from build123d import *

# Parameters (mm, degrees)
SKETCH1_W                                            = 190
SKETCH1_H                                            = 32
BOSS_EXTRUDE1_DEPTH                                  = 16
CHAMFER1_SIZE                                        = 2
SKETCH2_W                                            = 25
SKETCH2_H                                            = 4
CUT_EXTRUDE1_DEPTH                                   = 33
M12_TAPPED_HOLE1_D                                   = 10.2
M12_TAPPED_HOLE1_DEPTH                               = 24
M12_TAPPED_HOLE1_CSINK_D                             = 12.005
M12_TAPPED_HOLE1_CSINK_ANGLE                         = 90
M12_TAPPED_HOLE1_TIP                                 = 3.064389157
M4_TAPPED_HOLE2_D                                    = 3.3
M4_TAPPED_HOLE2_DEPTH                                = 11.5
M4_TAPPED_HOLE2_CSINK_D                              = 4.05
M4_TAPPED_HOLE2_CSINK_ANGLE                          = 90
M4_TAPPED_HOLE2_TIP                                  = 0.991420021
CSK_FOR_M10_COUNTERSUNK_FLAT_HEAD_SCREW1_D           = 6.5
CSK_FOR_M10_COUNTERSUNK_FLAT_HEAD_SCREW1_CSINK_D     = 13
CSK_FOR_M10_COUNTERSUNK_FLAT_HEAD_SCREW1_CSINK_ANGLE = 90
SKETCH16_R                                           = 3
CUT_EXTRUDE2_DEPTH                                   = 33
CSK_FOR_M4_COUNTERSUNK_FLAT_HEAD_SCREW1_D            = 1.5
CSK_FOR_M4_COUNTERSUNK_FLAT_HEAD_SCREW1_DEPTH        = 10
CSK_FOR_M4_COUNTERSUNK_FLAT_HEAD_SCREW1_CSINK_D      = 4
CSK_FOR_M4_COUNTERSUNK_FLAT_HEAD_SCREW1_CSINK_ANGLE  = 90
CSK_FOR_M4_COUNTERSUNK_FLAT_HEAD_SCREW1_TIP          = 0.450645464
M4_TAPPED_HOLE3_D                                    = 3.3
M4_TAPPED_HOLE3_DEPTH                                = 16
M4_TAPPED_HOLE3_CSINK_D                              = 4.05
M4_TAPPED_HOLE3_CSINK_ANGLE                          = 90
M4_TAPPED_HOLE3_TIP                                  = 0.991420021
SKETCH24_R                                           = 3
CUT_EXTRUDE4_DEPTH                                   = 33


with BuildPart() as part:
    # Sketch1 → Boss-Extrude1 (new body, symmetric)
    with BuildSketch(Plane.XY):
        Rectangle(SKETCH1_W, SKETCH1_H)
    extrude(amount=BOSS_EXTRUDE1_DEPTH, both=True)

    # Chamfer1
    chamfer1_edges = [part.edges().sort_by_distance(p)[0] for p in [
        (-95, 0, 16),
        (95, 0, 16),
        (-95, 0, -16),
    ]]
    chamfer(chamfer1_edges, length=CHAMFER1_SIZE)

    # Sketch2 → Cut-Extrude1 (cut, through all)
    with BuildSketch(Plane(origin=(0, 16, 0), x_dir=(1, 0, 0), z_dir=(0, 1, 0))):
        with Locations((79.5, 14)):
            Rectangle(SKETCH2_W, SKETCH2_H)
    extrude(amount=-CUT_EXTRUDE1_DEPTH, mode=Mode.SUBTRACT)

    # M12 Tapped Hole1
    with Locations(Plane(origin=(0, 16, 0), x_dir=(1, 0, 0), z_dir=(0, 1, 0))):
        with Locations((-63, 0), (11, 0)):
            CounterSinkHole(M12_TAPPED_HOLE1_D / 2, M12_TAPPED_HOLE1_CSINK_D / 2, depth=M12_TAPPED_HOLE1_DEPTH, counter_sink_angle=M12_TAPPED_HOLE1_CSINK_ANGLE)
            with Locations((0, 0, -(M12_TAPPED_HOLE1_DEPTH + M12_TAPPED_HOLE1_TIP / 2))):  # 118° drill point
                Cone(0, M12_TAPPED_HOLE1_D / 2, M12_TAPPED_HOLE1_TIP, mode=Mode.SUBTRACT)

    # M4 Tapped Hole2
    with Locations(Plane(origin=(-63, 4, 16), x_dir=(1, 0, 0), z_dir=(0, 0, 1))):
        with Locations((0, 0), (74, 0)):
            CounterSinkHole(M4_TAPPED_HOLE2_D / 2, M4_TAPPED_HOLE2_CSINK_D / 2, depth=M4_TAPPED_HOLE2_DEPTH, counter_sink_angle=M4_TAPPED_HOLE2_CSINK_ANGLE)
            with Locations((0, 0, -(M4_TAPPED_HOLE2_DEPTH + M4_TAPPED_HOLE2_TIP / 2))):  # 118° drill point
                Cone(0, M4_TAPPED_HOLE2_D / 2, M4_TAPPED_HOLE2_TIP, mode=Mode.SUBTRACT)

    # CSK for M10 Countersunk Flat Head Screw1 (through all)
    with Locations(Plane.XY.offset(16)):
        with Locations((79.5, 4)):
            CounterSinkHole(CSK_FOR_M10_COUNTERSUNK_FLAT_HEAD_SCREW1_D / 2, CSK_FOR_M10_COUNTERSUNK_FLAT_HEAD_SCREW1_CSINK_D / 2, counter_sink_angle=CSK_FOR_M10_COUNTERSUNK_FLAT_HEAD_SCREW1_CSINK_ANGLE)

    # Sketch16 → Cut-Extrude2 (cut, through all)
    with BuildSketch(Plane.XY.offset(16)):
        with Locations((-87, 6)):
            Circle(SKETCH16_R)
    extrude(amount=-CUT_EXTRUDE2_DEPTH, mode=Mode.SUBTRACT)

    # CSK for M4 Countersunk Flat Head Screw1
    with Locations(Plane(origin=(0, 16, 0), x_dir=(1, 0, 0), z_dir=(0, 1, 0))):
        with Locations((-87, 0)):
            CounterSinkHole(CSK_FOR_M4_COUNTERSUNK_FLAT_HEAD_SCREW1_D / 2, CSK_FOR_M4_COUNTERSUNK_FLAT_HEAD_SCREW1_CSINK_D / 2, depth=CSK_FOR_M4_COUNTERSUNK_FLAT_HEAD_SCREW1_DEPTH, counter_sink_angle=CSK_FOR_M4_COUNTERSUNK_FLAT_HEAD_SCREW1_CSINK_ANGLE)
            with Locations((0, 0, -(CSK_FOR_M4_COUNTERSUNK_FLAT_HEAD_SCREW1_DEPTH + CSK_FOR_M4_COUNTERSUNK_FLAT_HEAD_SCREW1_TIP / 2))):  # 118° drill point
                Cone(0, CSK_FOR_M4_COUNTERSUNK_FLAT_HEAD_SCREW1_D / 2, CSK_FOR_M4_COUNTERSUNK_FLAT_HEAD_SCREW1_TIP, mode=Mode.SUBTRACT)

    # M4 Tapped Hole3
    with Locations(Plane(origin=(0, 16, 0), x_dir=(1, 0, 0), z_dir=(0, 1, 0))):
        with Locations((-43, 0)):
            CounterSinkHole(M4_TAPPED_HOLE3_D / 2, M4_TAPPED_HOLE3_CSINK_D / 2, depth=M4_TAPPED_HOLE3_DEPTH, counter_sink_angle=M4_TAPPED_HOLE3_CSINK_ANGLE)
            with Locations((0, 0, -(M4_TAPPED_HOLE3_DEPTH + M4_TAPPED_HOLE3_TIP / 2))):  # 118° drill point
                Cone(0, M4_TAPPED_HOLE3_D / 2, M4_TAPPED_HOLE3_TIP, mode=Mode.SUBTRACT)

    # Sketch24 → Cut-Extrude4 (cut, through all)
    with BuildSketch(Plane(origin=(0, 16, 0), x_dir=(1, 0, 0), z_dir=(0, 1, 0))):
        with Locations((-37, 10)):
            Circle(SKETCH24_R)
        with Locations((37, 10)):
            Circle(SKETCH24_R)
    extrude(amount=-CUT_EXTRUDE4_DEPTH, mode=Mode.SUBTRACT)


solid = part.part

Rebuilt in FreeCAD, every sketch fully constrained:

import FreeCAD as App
import Part
import Sketcher
Q = App.Units.Quantity


def edges_at(feature, points):
    """Names of the edges that pass closest to the given points."""
    edges = feature.Shape.Edges
    near = lambda p: min(range(len(edges)), key=lambda i: edges[i].distToShape(Part.Vertex(*p))[0])
    return sorted({f"Edge{near(p) + 1}" for p in points})


def add_polygon(sketch, points):
    """Adds a closed chain of lines whose ends are joined by coincident constraints."""
    first, n = sketch.GeometryCount, len(points)
    for a, b in zip(points, points[1:] + points[:1]):
        sketch.addGeometry(Part.LineSegment(App.Vector(*a, 0), App.Vector(*b, 0)), False)
    for i in range(n):
        sketch.addConstraint(Sketcher.Constraint("Coincident", first + i, 2, first + (i + 1) % n, 1))

doc = App.newDocument("Part")
body = doc.addObject("PartDesign::Body", "Body")

sketch1 = body.newObject("Sketcher::SketchObject", "Sketch")
sketch1.AttachmentSupport = (doc.getObject("XY_Plane"), [""])
sketch1.MapMode = "FlatFace"
add_polygon(sketch1, [(-95, 16), (-95, -16), (95, -16), (95, 16)])
sketch1.addConstraint([
    Sketcher.Constraint("Vertical", 0),
    Sketcher.Constraint("Horizontal", 1),
    Sketcher.Constraint("Vertical", 2),
    Sketcher.Constraint("Horizontal", 3),
    Sketcher.Constraint("Symmetric", 0, 2, 2, 2, -1, 1),
    Sketcher.Constraint("DistanceX", 1, 1, 1, 2, Q("190 mm")),
    Sketcher.Constraint("DistanceY", 0, 2, 0, 1, Q("32 mm")),
])
pad1 = body.newObject("PartDesign::Pad", "Pad")
pad1.Profile = sketch1
pad1.Length = 32
pad1.Midplane = True
doc.recompute()

chamfer = body.newObject("PartDesign::Chamfer", "Chamfer")
chamfer.Base = (pad1, edges_at(pad1, [(-95, 0, 16), (95, 0, 16), (-95, 0, -16)]))
chamfer.Size = 2

sketch2 = body.newObject("Sketcher::SketchObject", "Sketch001")
sketch2.AttachmentSupport = (doc.getObject("XZ_Plane"), [""])
sketch2.MapMode = "FlatFace"
sketch2.AttachmentOffset = App.Placement(App.Vector(0, 0, -16), App.Rotation())
add_polygon(sketch2, [(67, -16), (67, -12), (92, -12), (92, -16)])
sketch2.addConstraint([
    Sketcher.Constraint("Vertical", 0),
    Sketcher.Constraint("Horizontal", 1),
    Sketcher.Constraint("Vertical", 2),
    Sketcher.Constraint("Horizontal", 3),
    Sketcher.Constraint("DistanceX", 1, 1, 1, 2, Q("25 mm")),
    Sketcher.Constraint("DistanceY", 0, 1, 0, 2, Q("4 mm")),
    Sketcher.Constraint("DistanceX", -1, 1, 0, 2, Q("67 mm")),
    Sketcher.Constraint("DistanceY", 0, 2, -1, 1, Q("12 mm")),
])
pocket1 = body.newObject("PartDesign::Pocket", "Pocket")
pocket1.Profile = sketch2
pocket1.Type = "ThroughAll"
pocket1.Reversed = True

sketch3 = body.newObject("Sketcher::SketchObject", "Sketch002")
sketch3.AttachmentSupport = (doc.getObject("XZ_Plane"), [""])
sketch3.MapMode = "FlatFace"
sketch3.AttachmentOffset = App.Placement(App.Vector(0, 0, -16), App.Rotation())
sketch3.addGeometry([
    Part.Circle(App.Vector(-63, 0, 0), App.Vector(0, 0, 1), 5),
    Part.Circle(App.Vector(11, 0, 0), App.Vector(0, 0, 1), 5),
], False)
sketch3.addConstraint([
    Sketcher.Constraint("Equal", 0, 1),
    Sketcher.Constraint("PointOnObject", 0, 3, -1),
    Sketcher.Constraint("PointOnObject", 1, 3, -1),
    Sketcher.Constraint("Diameter", 0, Q("10.2 mm")),
    Sketcher.Constraint("DistanceX", 0, 3, -1, 1, Q("63 mm")),
    Sketcher.Constraint("DistanceX", -1, 1, 1, 3, Q("11 mm")),
])
doc.recompute()
hole = body.newObject("PartDesign::Hole", "Hole")
hole.Profile = sketch3
hole.ThreadType = "None"
hole.Diameter = 10.2
hole.DepthType = "Dimension"
hole.Depth = 24
hole.DrillPoint = "Angled"
hole.DrillPointAngle = 118
hole.HoleCutType = "Countersink"
hole.HoleCutDiameter = 12.005
hole.HoleCutCountersinkAngle = 90
hole.Reversed = True

sketch4 = body.newObject("Sketcher::SketchObject", "Sketch003")
sketch4.AttachmentSupport = (doc.getObject("XY_Plane"), [""])
sketch4.MapMode = "FlatFace"
sketch4.AttachmentOffset = App.Placement(App.Vector(0, 0, 16), App.Rotation())
sketch4.addGeometry([
    Part.Circle(App.Vector(-63, 4, 0), App.Vector(0, 0, 1), 1.6),
    Part.Circle(App.Vector(11, 4, 0), App.Vector(0, 0, 1), 1.6),
], False)
sketch4.addConstraint([
    Sketcher.Constraint("Equal", 0, 1),
    Sketcher.Constraint("Horizontal", 0, 3, 1, 3),
    Sketcher.Constraint("Diameter", 0, Q("3.3 mm")),
    Sketcher.Constraint("DistanceX", 0, 3, -1, 1, Q("63 mm")),
    Sketcher.Constraint("DistanceY", -1, 1, 0, 3, Q("4 mm")),
    Sketcher.Constraint("DistanceX", -1, 1, 1, 3, Q("11 mm")),
])
doc.recompute()
hole2 = body.newObject("PartDesign::Hole", "Hole001")
hole2.Profile = sketch4
hole2.ThreadType = "None"
hole2.Diameter = 3.3
hole2.DepthType = "Dimension"
hole2.Depth = 11.5
hole2.DrillPoint = "Angled"
hole2.DrillPointAngle = 118
hole2.HoleCutType = "Countersink"
hole2.HoleCutDiameter = 4.05
hole2.HoleCutCountersinkAngle = 90

sketch5 = body.newObject("Sketcher::SketchObject", "Sketch004")
sketch5.AttachmentSupport = (doc.getObject("XY_Plane"), [""])
sketch5.MapMode = "FlatFace"
sketch5.AttachmentOffset = App.Placement(App.Vector(0, 0, 16), App.Rotation())
sketch5.addGeometry(Part.Circle(App.Vector(79.5, 4, 0), App.Vector(0, 0, 1), 3.2), False)
sketch5.addConstraint([
    Sketcher.Constraint("Diameter", 0, Q("6.5 mm")),
    Sketcher.Constraint("DistanceY", -1, 1, 0, 3, Q("4 mm")),
    Sketcher.Constraint("DistanceX", -1, 1, 0, 3, Q("79.5 mm")),
])
doc.recompute()
hole3 = body.newObject("PartDesign::Hole", "Hole002")
hole3.Profile = sketch5
hole3.ThreadType = "None"
hole3.Diameter = 6.5
hole3.DepthType = "ThroughAll"
hole3.HoleCutType = "Countersink"
hole3.HoleCutDiameter = 13
hole3.HoleCutCountersinkAngle = 90

sketch6 = body.newObject("Sketcher::SketchObject", "Sketch005")
sketch6.AttachmentSupport = (doc.getObject("XY_Plane"), [""])
sketch6.MapMode = "FlatFace"
sketch6.AttachmentOffset = App.Placement(App.Vector(0, 0, 16), App.Rotation())
sketch6.addGeometry(Part.Circle(App.Vector(-87, 6, 0), App.Vector(0, 0, 1), 3), False)
sketch6.addConstraint([
    Sketcher.Constraint("Diameter", 0, Q("6 mm")),
    Sketcher.Constraint("DistanceX", 0, 3, -1, 1, Q("87 mm")),
    Sketcher.Constraint("DistanceY", -1, 1, 0, 3, Q("6 mm")),
])
pocket2 = body.newObject("PartDesign::Pocket", "Pocket001")
pocket2.Profile = sketch6
pocket2.Type = "ThroughAll"

sketch7 = body.newObject("Sketcher::SketchObject", "Sketch006")
sketch7.AttachmentSupport = (doc.getObject("XZ_Plane"), [""])
sketch7.MapMode = "FlatFace"
sketch7.AttachmentOffset = App.Placement(App.Vector(0, 0, -16), App.Rotation())
sketch7.addGeometry(Part.Circle(App.Vector(-87, 0, 0), App.Vector(0, 0, 1), 0.8), False)
sketch7.addConstraint([
    Sketcher.Constraint("PointOnObject", 0, 3, -1),
    Sketcher.Constraint("Diameter", 0, Q("1.5 mm")),
    Sketcher.Constraint("DistanceX", 0, 3, -1, 1, Q("87 mm")),
])
doc.recompute()
hole4 = body.newObject("PartDesign::Hole", "Hole003")
hole4.Profile = sketch7
hole4.ThreadType = "None"
hole4.Diameter = 1.5
hole4.DepthType = "Dimension"
hole4.Depth = 10
hole4.DrillPoint = "Angled"
hole4.DrillPointAngle = 118
hole4.HoleCutType = "Countersink"
hole4.HoleCutDiameter = 4
hole4.HoleCutCountersinkAngle = 90
hole4.Reversed = True

sketch8 = body.newObject("Sketcher::SketchObject", "Sketch007")
sketch8.AttachmentSupport = (doc.getObject("XZ_Plane"), [""])
sketch8.MapMode = "FlatFace"
sketch8.AttachmentOffset = App.Placement(App.Vector(0, 0, -16), App.Rotation())
sketch8.addGeometry(Part.Circle(App.Vector(-43, 0, 0), App.Vector(0, 0, 1), 1.6), False)
sketch8.addConstraint([
    Sketcher.Constraint("PointOnObject", 0, 3, -1),
    Sketcher.Constraint("Diameter", 0, Q("3.3 mm")),
    Sketcher.Constraint("DistanceX", 0, 3, -1, 1, Q("43 mm")),
])
doc.recompute()
hole5 = body.newObject("PartDesign::Hole", "Hole004")
hole5.Profile = sketch8
hole5.ThreadType = "None"
hole5.Diameter = 3.3
hole5.DepthType = "Dimension"
hole5.Depth = 16
hole5.DrillPoint = "Angled"
hole5.DrillPointAngle = 118
hole5.HoleCutType = "Countersink"
hole5.HoleCutDiameter = 4.05
hole5.HoleCutCountersinkAngle = 90
hole5.Reversed = True

sketch9 = body.newObject("Sketcher::SketchObject", "Sketch008")
sketch9.AttachmentSupport = (doc.getObject("XZ_Plane"), [""])
sketch9.MapMode = "FlatFace"
sketch9.AttachmentOffset = App.Placement(App.Vector(0, 0, -16), App.Rotation())
sketch9.addGeometry([
    Part.Circle(App.Vector(-37, -10, 0), App.Vector(0, 0, 1), 3),
    Part.Circle(App.Vector(37, -10, 0), App.Vector(0, 0, 1), 3),
], False)
sketch9.addConstraint([
    Sketcher.Constraint("Equal", 0, 1),
    Sketcher.Constraint("Symmetric", 0, 3, 1, 3, -2),
    Sketcher.Constraint("Diameter", 0, Q("6 mm")),
    Sketcher.Constraint("DistanceX", 0, 3, -1, 1, Q("37 mm")),
    Sketcher.Constraint("DistanceY", 0, 3, -1, 1, Q("10 mm")),
])
pocket3 = body.newObject("PartDesign::Pocket", "Pocket002")
pocket3.Profile = sketch9
pocket3.Type = "ThroughAll"
pocket3.Reversed = True

doc.recompute()
